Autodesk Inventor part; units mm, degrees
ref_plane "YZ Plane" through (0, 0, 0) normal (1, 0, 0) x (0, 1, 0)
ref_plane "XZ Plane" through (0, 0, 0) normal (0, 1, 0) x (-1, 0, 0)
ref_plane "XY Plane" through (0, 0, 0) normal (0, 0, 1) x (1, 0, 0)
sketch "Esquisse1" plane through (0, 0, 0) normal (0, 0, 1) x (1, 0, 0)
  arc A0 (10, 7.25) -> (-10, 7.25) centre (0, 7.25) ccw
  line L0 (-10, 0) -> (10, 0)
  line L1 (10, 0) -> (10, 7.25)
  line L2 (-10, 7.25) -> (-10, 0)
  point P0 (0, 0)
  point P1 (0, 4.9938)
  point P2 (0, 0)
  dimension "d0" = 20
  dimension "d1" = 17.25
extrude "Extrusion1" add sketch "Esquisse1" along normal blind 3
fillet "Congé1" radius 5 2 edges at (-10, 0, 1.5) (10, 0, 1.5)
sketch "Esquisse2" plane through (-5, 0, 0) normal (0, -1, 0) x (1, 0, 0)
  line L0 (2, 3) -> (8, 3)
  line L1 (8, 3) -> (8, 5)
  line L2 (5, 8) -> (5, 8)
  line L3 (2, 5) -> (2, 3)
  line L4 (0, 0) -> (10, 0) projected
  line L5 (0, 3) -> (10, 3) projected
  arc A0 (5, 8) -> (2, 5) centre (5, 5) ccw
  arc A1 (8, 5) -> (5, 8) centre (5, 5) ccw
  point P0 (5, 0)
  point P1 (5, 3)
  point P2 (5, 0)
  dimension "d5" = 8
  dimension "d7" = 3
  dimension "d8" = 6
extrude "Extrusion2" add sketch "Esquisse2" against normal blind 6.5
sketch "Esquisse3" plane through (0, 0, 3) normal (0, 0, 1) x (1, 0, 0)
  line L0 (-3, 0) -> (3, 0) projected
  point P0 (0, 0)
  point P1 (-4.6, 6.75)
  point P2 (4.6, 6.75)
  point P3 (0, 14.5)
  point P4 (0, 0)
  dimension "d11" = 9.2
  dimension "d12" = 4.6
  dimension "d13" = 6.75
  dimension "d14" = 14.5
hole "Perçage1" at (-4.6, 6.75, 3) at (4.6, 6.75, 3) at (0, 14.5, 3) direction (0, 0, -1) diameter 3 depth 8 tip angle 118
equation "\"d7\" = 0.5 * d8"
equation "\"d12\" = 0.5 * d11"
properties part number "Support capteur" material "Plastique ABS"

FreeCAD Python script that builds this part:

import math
import FreeCAD as App
import Part
import Sketcher

V = App.Vector


def edges_at(feature, points):
    """Names of the edges that pass closest to the given points."""
    edges = feature.Shape.Edges
    near = lambda p: min(range(len(edges)), key=lambda i: edges[i].distToShape(Part.Vertex(*p))[0])
    return sorted({f"Edge{near(p) + 1}" for p in points})

doc = App.newDocument("Part")
body = doc.addObject("PartDesign::Body", "Body")

sketch1 = doc.addObject("Sketcher::SketchObject", "Sketch")
body.addObject(sketch1)
sketch1.AttachmentSupport = (doc.XY_Plane, [""])
sketch1.MapMode = "FlatFace"
sketch1.addGeometry([
    Part.LineSegment(V(10, 0, 0), V(10, 7, 0)),
    Part.ArcOfCircle(Part.Circle(V(0, 7, 0), V(0, 0, 1), 10), math.radians(0), math.radians(180)),
    Part.LineSegment(V(-10, 7, 0), V(-10, 0, 0)),
    Part.LineSegment(V(-10, 0, 0), V(10, 0, 0)),
], False)
sketch1.addConstraint([
    Sketcher.Constraint("Tangent", 0, 2, 1, 1),
    Sketcher.Constraint("Tangent", 1, 2, 2, 1),
    Sketcher.Constraint("Coincident", 2, 2, 3, 1),
    Sketcher.Constraint("Coincident", 3, 2, 0, 1),
    Sketcher.Constraint("Vertical", 0),
    Sketcher.Constraint("Vertical", 2),
    Sketcher.Constraint("Horizontal", 3),
    Sketcher.Constraint("Symmetric", 2, 2, 3, 2, -1, 1),
    Sketcher.Constraint("Radius", 1, 10.0),
    Sketcher.Constraint("DistanceY", 0, 1, 0, 2, 7.25),
])
pad1 = doc.addObject("PartDesign::Pad", "Pad")
body.addObject(pad1)
pad1.Profile = sketch1
pad1.Length = 3
doc.recompute()

fillet = doc.addObject("PartDesign::Fillet", "Fillet")
body.addObject(fillet)
fillet.Base = (pad1, edges_at(pad1, [(-10, 0, 1.5), (10, 0, 1.5)]))
fillet.Radius = 5

sketch2 = doc.addObject("Sketcher::SketchObject", "Sketch001")
body.addObject(sketch2)
sketch2.AttachmentSupport = (doc.XZ_Plane, [""])
sketch2.MapMode = "FlatFace"
sketch2.addGeometry([
    Part.LineSegment(V(-3, 5, 0), V(-3, 3, 0)),
    Part.LineSegment(V(-3, 3, 0), V(3, 3, 0)),
    Part.LineSegment(V(3, 3, 0), V(3, 5, 0)),
    Part.ArcOfCircle(Part.Circle(V(0, 5, 0), V(0, 0, 1), 3), math.radians(0), math.radians(180)),
], False)
sketch2.addConstraint([
    Sketcher.Constraint("Coincident", 0, 2, 1, 1),
    Sketcher.Constraint("Coincident", 1, 2, 2, 1),
    Sketcher.Constraint("Tangent", 2, 2, 3, 1),
    Sketcher.Constraint("Tangent", 3, 2, 0, 1),
    Sketcher.Constraint("Vertical", 0),
    Sketcher.Constraint("Horizontal", 1),
    Sketcher.Constraint("Vertical", 2),
    Sketcher.Constraint("PointOnObject", 3, 3, -2),
    Sketcher.Constraint("Radius", 3, 3.0),
    Sketcher.Constraint("DistanceY", -1, 1, 0, 2, 3.0),
    Sketcher.Constraint("DistanceY", 0, 2, 0, 1, 2.0),
])
pad2 = doc.addObject("PartDesign::Pad", "Pad001")
body.addObject(pad2)
pad2.Profile = sketch2
pad2.Length = 6.5
pad2.Reversed = True

sketch3 = doc.addObject("Sketcher::SketchObject", "Sketch002")
body.addObject(sketch3)
sketch3.AttachmentSupport = (doc.XY_Plane, [""])
sketch3.MapMode = "FlatFace"
sketch3.AttachmentOffset = App.Placement(V(0, 0, 3), App.Rotation())
sketch3.addGeometry([
    Part.Circle(V(-4.6, 6.8, 0), V(0, 0, 1), 1.5),
    Part.Circle(V(4.6, 6.8, 0), V(0, 0, 1), 1.5),
    Part.Circle(V(0, 14.5, 0), V(0, 0, 1), 1.5),
], False)
sketch3.addConstraint([
    Sketcher.Constraint("Equal", 0, 1),
    Sketcher.Constraint("Equal", 1, 2),
    Sketcher.Constraint("Symmetric", 0, 3, 1, 3, -2),
    Sketcher.Constraint("PointOnObject", 2, 3, -2),
    Sketcher.Constraint("Diameter", 0, 3.0),
    Sketcher.Constraint("DistanceX", 0, 3, -1, 1, 4.6),
    Sketcher.Constraint("DistanceY", -1, 1, 2, 3, 14.5),
    Sketcher.Constraint("DistanceY", -1, 1, 0, 3, 6.75),
])
doc.recompute()
hole = doc.addObject("PartDesign::Hole", "Hole")
body.addObject(hole)
hole.Profile = sketch3
hole.ThreadType = "None"
hole.Diameter = 3
hole.DepthType = "Dimension"
hole.Depth = 8
hole.DrillPoint = "Angled"
hole.DrillPointAngle = 118

doc.recompute()
